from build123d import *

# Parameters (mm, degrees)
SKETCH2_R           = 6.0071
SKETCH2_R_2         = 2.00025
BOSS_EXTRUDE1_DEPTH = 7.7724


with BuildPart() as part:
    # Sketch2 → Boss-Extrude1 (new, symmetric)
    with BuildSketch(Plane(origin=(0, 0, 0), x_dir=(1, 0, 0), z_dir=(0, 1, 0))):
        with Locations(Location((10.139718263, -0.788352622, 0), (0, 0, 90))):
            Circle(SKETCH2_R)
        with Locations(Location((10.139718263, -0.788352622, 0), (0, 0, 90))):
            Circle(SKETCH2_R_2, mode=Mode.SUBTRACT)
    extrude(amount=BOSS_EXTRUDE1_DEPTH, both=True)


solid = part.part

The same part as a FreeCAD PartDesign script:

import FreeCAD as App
import Part
import Sketcher
Q = App.Units.Quantity

doc = App.newDocument("Part")
body = doc.addObject("PartDesign::Body", "Body")

sketch1 = body.newObject("Sketcher::SketchObject", "Sketch")
sketch1.AttachmentSupport = (doc.getObject("XZ_Plane"), [""])
sketch1.MapMode = "FlatFace"
sketch1.addGeometry(Part.Circle(App.Vector(10.1, 0.8, 0), App.Vector(0, 0, 1), 6), False)
sketch1.addGeometry(Part.Circle(App.Vector(10.1, 0.8, 0), App.Vector(0, 0, 1), 2), False)
sketch1.addConstraint(Sketcher.Constraint("Coincident", 1, 3, 0, 3))
sketch1.addConstraint(Sketcher.Constraint("Diameter", 0, Q("0.473 in")))
sketch1.addConstraint(Sketcher.Constraint("Diameter", 1, Q("0.1575 in")))
sketch1.addConstraint(Sketcher.Constraint("DistanceX", -1, 1, 0, 3, Q("10.139718 mm")))
sketch1.addConstraint(Sketcher.Constraint("DistanceY", -1, 1, 0, 3, Q("0.788353 mm")))
pad1 = body.newObject("PartDesign::Pad", "Pad")
pad1.Profile = sketch1
pad1.Length = Q("0.612 in")
pad1.Midplane = True

doc.recompute()
